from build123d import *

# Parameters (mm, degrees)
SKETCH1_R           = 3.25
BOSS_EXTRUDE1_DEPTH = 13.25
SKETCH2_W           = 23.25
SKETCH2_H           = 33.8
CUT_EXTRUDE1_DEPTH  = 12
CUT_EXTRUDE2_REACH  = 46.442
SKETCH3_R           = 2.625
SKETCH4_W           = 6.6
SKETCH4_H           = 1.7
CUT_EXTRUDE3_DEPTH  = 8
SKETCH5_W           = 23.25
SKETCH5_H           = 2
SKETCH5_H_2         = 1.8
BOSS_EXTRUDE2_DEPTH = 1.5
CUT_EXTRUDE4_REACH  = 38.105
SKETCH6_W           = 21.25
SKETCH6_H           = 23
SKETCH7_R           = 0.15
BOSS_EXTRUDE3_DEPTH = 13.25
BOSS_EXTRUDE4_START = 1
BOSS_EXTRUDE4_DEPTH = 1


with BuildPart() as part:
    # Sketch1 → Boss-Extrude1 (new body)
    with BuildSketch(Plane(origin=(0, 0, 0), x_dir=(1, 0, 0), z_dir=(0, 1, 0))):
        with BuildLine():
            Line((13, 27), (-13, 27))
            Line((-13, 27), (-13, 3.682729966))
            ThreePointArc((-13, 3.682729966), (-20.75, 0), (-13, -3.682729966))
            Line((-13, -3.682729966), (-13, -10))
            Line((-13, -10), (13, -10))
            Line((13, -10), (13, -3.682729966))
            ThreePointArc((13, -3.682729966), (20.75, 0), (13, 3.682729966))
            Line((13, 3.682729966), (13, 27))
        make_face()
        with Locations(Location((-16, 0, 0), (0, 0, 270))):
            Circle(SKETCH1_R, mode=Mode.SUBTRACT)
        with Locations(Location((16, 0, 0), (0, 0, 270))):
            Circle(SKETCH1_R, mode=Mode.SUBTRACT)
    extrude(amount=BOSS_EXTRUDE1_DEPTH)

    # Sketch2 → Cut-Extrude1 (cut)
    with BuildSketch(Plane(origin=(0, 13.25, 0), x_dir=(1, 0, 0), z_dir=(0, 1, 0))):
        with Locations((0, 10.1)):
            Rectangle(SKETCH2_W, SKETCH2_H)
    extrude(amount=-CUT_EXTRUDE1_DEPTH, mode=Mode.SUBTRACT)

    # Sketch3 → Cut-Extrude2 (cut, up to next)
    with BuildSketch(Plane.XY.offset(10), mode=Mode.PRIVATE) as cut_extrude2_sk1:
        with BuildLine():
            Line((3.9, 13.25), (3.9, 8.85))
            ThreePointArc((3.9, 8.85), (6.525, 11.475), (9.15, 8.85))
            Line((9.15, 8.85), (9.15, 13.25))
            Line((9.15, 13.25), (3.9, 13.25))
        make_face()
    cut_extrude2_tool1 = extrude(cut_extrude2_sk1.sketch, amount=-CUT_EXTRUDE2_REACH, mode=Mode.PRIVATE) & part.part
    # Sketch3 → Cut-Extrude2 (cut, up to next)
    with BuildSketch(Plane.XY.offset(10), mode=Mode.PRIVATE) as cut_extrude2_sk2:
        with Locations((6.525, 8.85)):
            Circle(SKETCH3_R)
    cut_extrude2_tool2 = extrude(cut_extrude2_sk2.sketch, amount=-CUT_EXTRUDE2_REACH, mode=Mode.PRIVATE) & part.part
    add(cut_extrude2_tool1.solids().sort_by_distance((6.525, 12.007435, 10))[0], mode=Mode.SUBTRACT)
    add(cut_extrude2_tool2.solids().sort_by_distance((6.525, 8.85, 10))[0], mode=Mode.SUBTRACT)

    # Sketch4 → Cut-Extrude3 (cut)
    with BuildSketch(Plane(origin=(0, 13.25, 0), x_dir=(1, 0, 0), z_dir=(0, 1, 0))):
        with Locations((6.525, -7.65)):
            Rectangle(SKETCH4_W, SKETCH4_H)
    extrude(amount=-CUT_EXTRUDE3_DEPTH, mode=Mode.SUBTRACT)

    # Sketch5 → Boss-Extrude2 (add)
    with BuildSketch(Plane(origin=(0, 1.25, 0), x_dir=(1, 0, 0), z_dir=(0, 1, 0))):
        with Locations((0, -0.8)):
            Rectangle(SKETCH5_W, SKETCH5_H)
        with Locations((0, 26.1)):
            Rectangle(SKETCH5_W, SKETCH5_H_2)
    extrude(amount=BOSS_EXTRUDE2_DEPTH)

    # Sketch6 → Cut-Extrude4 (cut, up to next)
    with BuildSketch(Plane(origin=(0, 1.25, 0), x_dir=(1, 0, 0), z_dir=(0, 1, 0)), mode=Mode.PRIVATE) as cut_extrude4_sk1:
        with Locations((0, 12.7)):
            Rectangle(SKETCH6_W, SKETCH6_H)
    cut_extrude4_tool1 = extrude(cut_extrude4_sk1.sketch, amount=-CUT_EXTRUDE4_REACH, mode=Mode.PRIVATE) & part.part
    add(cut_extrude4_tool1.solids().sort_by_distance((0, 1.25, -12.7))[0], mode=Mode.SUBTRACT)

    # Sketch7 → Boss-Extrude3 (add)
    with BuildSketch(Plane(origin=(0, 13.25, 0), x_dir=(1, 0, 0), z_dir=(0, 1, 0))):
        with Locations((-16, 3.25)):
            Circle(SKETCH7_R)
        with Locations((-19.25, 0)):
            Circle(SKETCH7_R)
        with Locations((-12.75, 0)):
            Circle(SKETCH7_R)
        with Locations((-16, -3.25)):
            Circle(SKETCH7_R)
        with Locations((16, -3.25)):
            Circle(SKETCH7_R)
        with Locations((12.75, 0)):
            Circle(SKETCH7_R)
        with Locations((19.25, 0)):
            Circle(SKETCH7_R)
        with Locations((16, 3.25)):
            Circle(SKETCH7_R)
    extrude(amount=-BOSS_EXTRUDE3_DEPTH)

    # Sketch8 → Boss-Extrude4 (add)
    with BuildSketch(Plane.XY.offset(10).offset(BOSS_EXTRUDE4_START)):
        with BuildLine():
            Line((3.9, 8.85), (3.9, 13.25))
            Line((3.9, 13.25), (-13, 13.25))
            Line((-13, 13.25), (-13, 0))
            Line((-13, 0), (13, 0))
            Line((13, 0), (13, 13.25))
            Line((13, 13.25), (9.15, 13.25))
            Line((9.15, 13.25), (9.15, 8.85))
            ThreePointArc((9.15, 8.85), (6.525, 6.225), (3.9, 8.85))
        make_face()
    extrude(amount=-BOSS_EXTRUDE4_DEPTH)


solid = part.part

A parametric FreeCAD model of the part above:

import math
import FreeCAD as App
import Part
import Sketcher
from FreeCAD import Vector

doc = App.newDocument("Part")
body = doc.addObject("PartDesign::Body", "Body")

# Sketch on XZ plane
sketch1 = body.newObject("Sketcher::SketchObject", "Sketch")
sketch1.AttachmentSupport = (doc.getObject("XZ_Plane"), [""])
sketch1.MapMode = "FlatFace"
sketch1.addGeometry([
    Part.LineSegment(Vector(13, -27, 0), Vector(-13, -27, 0)),  # 0
    Part.LineSegment(Vector(-13, -27, 0), Vector(-13, -3.7, 0)),  # 1
    Part.ArcOfCircle(Part.Circle(Vector(-16, 0, 0), Vector(0, 0, 1), 4.8), math.radians(51), math.radians(309)),  # 2
    Part.LineSegment(Vector(-13, 3.7, 0), Vector(-13, 10, 0)),  # 3
    Part.LineSegment(Vector(-13, 10, 0), Vector(13, 10, 0)),  # 4
    Part.LineSegment(Vector(13, 10, 0), Vector(13, 3.7, 0)),  # 5
    Part.ArcOfCircle(Part.Circle(Vector(16, 0, 0), Vector(0, 0, 1), 4.8), math.radians(-129), math.radians(129)),  # 6
    Part.LineSegment(Vector(13, -3.7, 0), Vector(13, -27, 0)),  # 7
    Part.Circle(Vector(-16, 0, 0), Vector(0, 0, 1), 3.2),  # 8
    Part.Circle(Vector(16, 0, 0), Vector(0, 0, 1), 3.2),  # 9
], False)
sketch1.addConstraint([
    Sketcher.Constraint("Coincident", 0, 2, 1, 1),
    Sketcher.Constraint("Coincident", 1, 2, 2, 2),
    Sketcher.Constraint("Coincident", 2, 1, 3, 1),
    Sketcher.Constraint("Coincident", 3, 2, 4, 1),
    Sketcher.Constraint("Coincident", 4, 2, 5, 1),
    Sketcher.Constraint("Coincident", 5, 2, 6, 2),
    Sketcher.Constraint("Coincident", 6, 1, 7, 1),
    Sketcher.Constraint("Coincident", 7, 2, 0, 1),
    Sketcher.Constraint("Horizontal", 0),
    Sketcher.Constraint("Vertical", 1),
    Sketcher.Constraint("Vertical", 3),
    Sketcher.Constraint("Horizontal", 4),
    Sketcher.Constraint("Vertical", 5),
    Sketcher.Constraint("Vertical", 7),
    Sketcher.Constraint("Coincident", 8, 3, 2, 3),
    Sketcher.Constraint("Coincident", 9, 3, 6, 3),
    Sketcher.Constraint("Equal", 2, 6),
    Sketcher.Constraint("Equal", 8, 9),
    Sketcher.Constraint("Symmetric", 2, 3, 6, 3, -1, 1),
    Sketcher.Constraint("Symmetric", 2, 1, 5, 2, -2),
    Sketcher.Constraint("Horizontal", 1, 2, 6, 1),
    Sketcher.Constraint("Vertical", 1, 2, 2, 1),
    Sketcher.Constraint("Diameter", 8, 6.5),
    Sketcher.Constraint("DistanceX", 0, 2, 0, 1, 26.0),
    Sketcher.Constraint("Radius", 2, 4.75),
    Sketcher.Constraint("DistanceX", 2, 3, -1, 1, 16.0),
    Sketcher.Constraint("DistanceY", 0, 2, -1, 1, 27.0),
    Sketcher.Constraint("DistanceY", -1, 1, 3, 2, 10.0),
])
pad1 = body.newObject("PartDesign::Pad", "Pad")
pad1.Profile = sketch1
pad1.Length = 13.25
pad1.Reversed = True

# Sketch on XZ plane
sketch2 = body.newObject("Sketcher::SketchObject", "Sketch001")
sketch2.AttachmentSupport = (doc.getObject("XZ_Plane"), [""])
sketch2.MapMode = "FlatFace"
sketch2.AttachmentOffset = App.Placement(Vector(0, 0, -13.25), App.Rotation())
sketch2.addGeometry([
    Part.LineSegment(Vector(-12, -27, 0), Vector(-12, 7, 0)),
    Part.LineSegment(Vector(-12, 7, 0), Vector(12, 7, 0)),
    Part.LineSegment(Vector(12, 7, 0), Vector(12, -27, 0)),
    Part.LineSegment(Vector(12, -27, 0), Vector(-12, -27, 0)),
], False)
sketch2.addConstraint([
    Sketcher.Constraint("Coincident", 0, 2, 1, 1),
    Sketcher.Constraint("Coincident", 1, 2, 2, 1),
    Sketcher.Constraint("Coincident", 2, 2, 3, 1),
    Sketcher.Constraint("Coincident", 3, 2, 0, 1),
    Sketcher.Constraint("Vertical", 0),
    Sketcher.Constraint("Horizontal", 1),
    Sketcher.Constraint("Vertical", 2),
    Sketcher.Constraint("Horizontal", 3),
    Sketcher.Constraint("DistanceY", 0, 1, 0, 2, 33.8),
    Sketcher.Constraint("DistanceY", 2, 2, -1, 1, 27.0),
    Sketcher.Constraint("DistanceX", 1, 1, 1, 2, 23.25),
    Sketcher.Constraint("DistanceX", 0, 2, -1, 1, 11.625),
])
pocket1 = body.newObject("PartDesign::Pocket", "Pocket")
pocket1.Profile = sketch2
pocket1.Length = 12
pocket1.Reversed = True

# Sketch on XY plane
sketch3 = body.newObject("Sketcher::SketchObject", "Sketch002")
sketch3.AttachmentSupport = (doc.getObject("XY_Plane"), [""])
sketch3.MapMode = "FlatFace"
sketch3.AttachmentOffset = App.Placement(Vector(0, 0, 10), App.Rotation())
sketch3.addGeometry([
    Part.LineSegment(Vector(3.9, 13.2, 0), Vector(3.9, 8.8, 0)),
    Part.ArcOfCircle(Part.Circle(Vector(6.5, 8.8, 0), Vector(0, 0, 1), 2.6), math.radians(0), math.radians(180)),
    Part.LineSegment(Vector(9.2, 8.8, 0), Vector(9.2, 13.2, 0)),
    Part.LineSegment(Vector(9.2, 13.2, 0), Vector(3.9, 13.2, 0)),
], False)
sketch3.addConstraint([
    Sketcher.Constraint("Tangent", 0, 2, 1, 2),
    Sketcher.Constraint("Tangent", 1, 1, 2, 1),
    Sketcher.Constraint("Coincident", 2, 2, 3, 1),
    Sketcher.Constraint("Coincident", 3, 2, 0, 1),
    Sketcher.Constraint("Vertical", 0),
    Sketcher.Constraint("Vertical", 2),
    Sketcher.Constraint("Horizontal", 3),
    Sketcher.Constraint("DistanceY", 0, 2, 0, 1, 4.4),
    Sketcher.Constraint("Radius", 1, 2.625),
    Sketcher.Constraint("DistanceX", -1, 1, 0, 2, 3.9),
    Sketcher.Constraint("DistanceY", -1, 1, 1, 3, 8.85),
])
pocket2 = body.newObject("PartDesign::Pocket", "Pocket001")
pocket2.Profile = sketch3
pocket2.Type = "UpToFirst"

# Sketch on XY plane
sketch4 = body.newObject("Sketcher::SketchObject", "Sketch003")
sketch4.AttachmentSupport = (doc.getObject("XY_Plane"), [""])
sketch4.MapMode = "FlatFace"
sketch4.AttachmentOffset = App.Placement(Vector(0, 0, 10), App.Rotation())
sketch4.addGeometry(Part.Circle(Vector(6.5, 8.8, 0), Vector(0, 0, 1), 2.6), False)
sketch4.addConstraint([
    Sketcher.Constraint("Diameter", 0, 5.25),
    Sketcher.Constraint("DistanceY", -1, 1, 0, 3, 8.85),
    Sketcher.Constraint("DistanceX", -1, 1, 0, 3, 6.525),
])
pocket3 = body.newObject("PartDesign::Pocket", "Pocket002")
pocket3.Profile = sketch4
pocket3.Type = "UpToFirst"

# Sketch on XZ plane
sketch5 = body.newObject("Sketcher::SketchObject", "Sketch004")
sketch5.AttachmentSupport = (doc.getObject("XZ_Plane"), [""])
sketch5.MapMode = "FlatFace"
sketch5.AttachmentOffset = App.Placement(Vector(0, 0, -13.25), App.Rotation())
sketch5.addGeometry([
    Part.LineSegment(Vector(3.2, 6.8, 0), Vector(3.2, 8.5, 0)),
    Part.LineSegment(Vector(3.2, 8.5, 0), Vector(9.8, 8.5, 0)),
    Part.LineSegment(Vector(9.8, 8.5, 0), Vector(9.8, 6.8, 0)),
    Part.LineSegment(Vector(9.8, 6.8, 0), Vector(3.2, 6.8, 0)),
], False)
sketch5.addConstraint([
    Sketcher.Constraint("Coincident", 0, 2, 1, 1),
    Sketcher.Constraint("Coincident", 1, 2, 2, 1),
    Sketcher.Constraint("Coincident", 2, 2, 3, 1),
    Sketcher.Constraint("Coincident", 3, 2, 0, 1),
    Sketcher.Constraint("Vertical", 0),
    Sketcher.Constraint("Horizontal", 1),
    Sketcher.Constraint("Vertical", 2),
    Sketcher.Constraint("Horizontal", 3),
    Sketcher.Constraint("DistanceX", 1, 1, 1, 2, 6.6),
    Sketcher.Constraint("DistanceY", 0, 1, 0, 2, 1.7),
    Sketcher.Constraint("DistanceY", -1, 1, 0, 2, 8.5),
    Sketcher.Constraint("DistanceX", -1, 1, 0, 2, 3.225),
])
pocket4 = body.newObject("PartDesign::Pocket", "Pocket003")
pocket4.Profile = sketch5
pocket4.Length = 8
pocket4.Reversed = True

# Sketch on XZ plane
sketch6 = body.newObject("Sketcher::SketchObject", "Sketch005")
sketch6.AttachmentSupport = (doc.getObject("XZ_Plane"), [""])
sketch6.MapMode = "FlatFace"
sketch6.AttachmentOffset = App.Placement(Vector(0, 0, -1.25), App.Rotation())
sketch6.addGeometry([
    Part.LineSegment(Vector(-11.6, -0.2, 0), Vector(-11.6, 1.8, 0)),  # 0
    Part.LineSegment(Vector(-11.6, 1.8, 0), Vector(11.6, 1.8, 0)),  # 1
    Part.LineSegment(Vector(11.6, 1.8, 0), Vector(11.6, -0.2, 0)),  # 2
    Part.LineSegment(Vector(11.6, -0.2, 0), Vector(-11.6, -0.2, 0)),  # 3
    Part.LineSegment(Vector(-11.6, -27, 0), Vector(-11.6, -25.2, 0)),  # 4
    Part.LineSegment(Vector(-11.6, -25.2, 0), Vector(11.6, -25.2, 0)),  # 5
    Part.LineSegment(Vector(11.6, -25.2, 0), Vector(11.6, -27, 0)),  # 6
    Part.LineSegment(Vector(11.6, -27, 0), Vector(-11.6, -27, 0)),  # 7
], False)
sketch6.addConstraint([
    Sketcher.Constraint("Coincident", 0, 2, 1, 1),
    Sketcher.Constraint("Coincident", 1, 2, 2, 1),
    Sketcher.Constraint("Coincident", 2, 2, 3, 1),
    Sketcher.Constraint("Coincident", 3, 2, 0, 1),
    Sketcher.Constraint("Coincident", 4, 2, 5, 1),
    Sketcher.Constraint("Coincident", 5, 2, 6, 1),
    Sketcher.Constraint("Coincident", 6, 2, 7, 1),
    Sketcher.Constraint("Coincident", 7, 2, 4, 1),
    Sketcher.Constraint("Vertical", 0),
    Sketcher.Constraint("Horizontal", 1),
    Sketcher.Constraint("Vertical", 2),
    Sketcher.Constraint("Horizontal", 3),
    Sketcher.Constraint("Vertical", 4),
    Sketcher.Constraint("Horizontal", 5),
    Sketcher.Constraint("Vertical", 6),
    Sketcher.Constraint("Horizontal", 7),
    Sketcher.Constraint("Vertical", 3, 2, 4, 2),
    Sketcher.Constraint("Vertical", 2, 2, 5, 2),
    Sketcher.Constraint("DistanceY", 0, 1, 0, 2, 2.0),
    Sketcher.Constraint("DistanceY", 4, 1, 4, 2, 1.8),
    Sketcher.Constraint("DistanceY", 6, 2, -1, 1, 27.0),
    Sketcher.Constraint("DistanceY", 4, 2, 3, 2, 25.0),
    Sketcher.Constraint("DistanceX", 1, 1, 1, 2, 23.25),
    Sketcher.Constraint("DistanceX", 0, 2, -1, 1, 11.625),
])
pad2 = body.newObject("PartDesign::Pad", "Pad001")
pad2.Profile = sketch6
pad2.Length = 1.5
pad2.Reversed = True

# Sketch on XZ plane
sketch7 = body.newObject("Sketcher::SketchObject", "Sketch006")
sketch7.AttachmentSupport = (doc.getObject("XZ_Plane"), [""])
sketch7.MapMode = "FlatFace"
sketch7.AttachmentOffset = App.Placement(Vector(0, 0, -1.25), App.Rotation())
sketch7.addGeometry([
    Part.LineSegment(Vector(-11, -24, 0), Vector(-11, -1, 0)),
    Part.LineSegment(Vector(-11, -1, 0), Vector(11, -1, 0)),
    Part.LineSegment(Vector(11, -1, 0), Vector(11, -24, 0)),
    Part.LineSegment(Vector(11, -24, 0), Vector(-11, -24, 0)),
], False)
sketch7.addConstraint([
    Sketcher.Constraint("Coincident", 0, 2, 1, 1),
    Sketcher.Constraint("Coincident", 1, 2, 2, 1),
    Sketcher.Constraint("Coincident", 2, 2, 3, 1),
    Sketcher.Constraint("Coincident", 3, 2, 0, 1),
    Sketcher.Constraint("Vertical", 0),
    Sketcher.Constraint("Horizontal", 1),
    Sketcher.Constraint("Vertical", 2),
    Sketcher.Constraint("Horizontal", 3),
    Sketcher.Constraint("DistanceY", 0, 1, 0, 2, 23.0),
    Sketcher.Constraint("DistanceX", 1, 1, 1, 2, 21.25),
    Sketcher.Constraint("DistanceY", 0, 2, -1, 1, 1.2),
    Sketcher.Constraint("DistanceX", 0, 2, -1, 1, 10.625),
])
pocket5 = body.newObject("PartDesign::Pocket", "Pocket004")
pocket5.Profile = sketch7
pocket5.Type = "UpToFirst"
pocket5.Reversed = True

# Sketch on XZ plane
sketch8 = body.newObject("Sketcher::SketchObject", "Sketch007")
sketch8.AttachmentSupport = (doc.getObject("XZ_Plane"), [""])
sketch8.MapMode = "FlatFace"
sketch8.AttachmentOffset = App.Placement(Vector(0, 0, -13.25), App.Rotation())
sketch8.addGeometry([
    Part.Circle(Vector(-16, -3.25, 0), Vector(0, 0, 1), 0.15),  # 0
    Part.Circle(Vector(-19.25, 0, 0), Vector(0, 0, 1), 0.15),  # 1
    Part.Circle(Vector(-12.75, 0, 0), Vector(0, 0, 1), 0.15),  # 2
    Part.Circle(Vector(-16, 3.25, 0), Vector(0, 0, 1), 0.15),  # 3
    Part.Circle(Vector(16, 3.25, 0), Vector(0, 0, 1), 0.15),  # 4
    Part.Circle(Vector(12.75, 0, 0), Vector(0, 0, 1), 0.15),  # 5
    Part.Circle(Vector(19.25, 0, 0), Vector(0, 0, 1), 0.15),  # 6
    Part.Circle(Vector(16, -3.25, 0), Vector(0, 0, 1), 0.15),  # 7
], False)
sketch8.addConstraint([
    Sketcher.Constraint("Equal", 0, 1),
    Sketcher.Constraint("Equal", 1, 2),
    Sketcher.Constraint("Equal", 2, 3),
    Sketcher.Constraint("Equal", 3, 4),
    Sketcher.Constraint("Equal", 4, 5),
    Sketcher.Constraint("Equal", 5, 6),
    Sketcher.Constraint("Equal", 6, 7),
    Sketcher.Constraint("Symmetric", 0, 3, 4, 3, -1, 1),
    Sketcher.Constraint("Symmetric", 2, 3, 5, 3, -1, 1),
    Sketcher.Constraint("Symmetric", 1, 3, 6, 3, -1, 1),
    Sketcher.Constraint("Symmetric", 3, 3, 7, 3, -1, 1),
    Sketcher.Constraint("Symmetric", 3, 3, 4, 3, -2),
    Sketcher.Constraint("PointOnObject", 1, 3, -1),
    Sketcher.Constraint("PointOnObject", 2, 3, -1),
    Sketcher.Constraint("Diameter", 0, 0.3),
    Sketcher.Constraint("DistanceX", 0, 3, -1, 1, 16.0),
    Sketcher.Constraint("DistanceX", 1, 3, 5, 3, 32.0),
    Sketcher.Constraint("DistanceX", 1, 3, 2, 3, 6.5),
    Sketcher.Constraint("DistanceY", 0, 3, 3, 3, 6.5),
])
pad3 = body.newObject("PartDesign::Pad", "Pad002")
pad3.Profile = sketch8
pad3.Length = 13.25

# Sketch on XY plane
sketch9 = body.newObject("Sketcher::SketchObject", "Sketch008")
sketch9.AttachmentSupport = (doc.getObject("XY_Plane"), [""])
sketch9.MapMode = "FlatFace"
sketch9.AttachmentOffset = App.Placement(Vector(0, 0, 11), App.Rotation())
sketch9.addGeometry([
    Part.LineSegment(Vector(3.9, 8.8, 0), Vector(3.9, 13.2, 0)),  # 0
    Part.LineSegment(Vector(3.9, 13.2, 0), Vector(-13, 13.2, 0)),  # 1
    Part.LineSegment(Vector(-13, 13.2, 0), Vector(-13, 0, 0)),  # 2
    Part.LineSegment(Vector(-13, 0, 0), Vector(13, 0, 0)),  # 3
    Part.LineSegment(Vector(13, 0, 0), Vector(13, 13.2, 0)),  # 4
    Part.LineSegment(Vector(13, 13.2, 0), Vector(9.2, 13.2, 0)),  # 5
    Part.LineSegment(Vector(9.2, 13.2, 0), Vector(9.2, 8.8, 0)),  # 6
    Part.ArcOfCircle(Part.Circle(Vector(6.5, 8.8, 0), Vector(0, 0, 1), 2.6), math.radians(180), math.radians(360)),  # 7
], False)
sketch9.addConstraint([
    Sketcher.Constraint("Coincident", 0, 2, 1, 1),
    Sketcher.Constraint("Coincident", 1, 2, 2, 1),
    Sketcher.Constraint("Coincident", 2, 2, 3, 1),
    Sketcher.Constraint("Coincident", 3, 2, 4, 1),
    Sketcher.Constraint("Coincident", 4, 2, 5, 1),
    Sketcher.Constraint("Coincident", 5, 2, 6, 1),
    Sketcher.Constraint("Tangent", 6, 2, 7, 2),
    Sketcher.Constraint("Tangent", 7, 1, 0, 1),
    Sketcher.Constraint("Vertical", 0),
    Sketcher.Constraint("Horizontal", 1),
    Sketcher.Constraint("Vertical", 2),
    Sketcher.Constraint("Horizontal", 3),
    Sketcher.Constraint("Vertical", 4),
    Sketcher.Constraint("Horizontal", 5),
    Sketcher.Constraint("Vertical", 6),
    Sketcher.Constraint("Symmetric", 2, 2, 3, 2, -1, 1),
    Sketcher.Constraint("Horizontal", 1, 2, 4, 2),
    Sketcher.Constraint("DistanceX", 3, 1, 3, 2, 26.0),
    Sketcher.Constraint("DistanceX", 1, 2, 1, 1, 16.9),
    Sketcher.Constraint("DistanceY", 0, 1, 0, 2, 4.4),
    Sketcher.Constraint("Radius", 7, 2.625),
    Sketcher.Constraint("DistanceY", 2, 2, 2, 1, 13.25),
])
pad4 = body.newObject("PartDesign::Pad", "Pad003")
pad4.Profile = sketch9
pad4.Length = 1
pad4.Reversed = True

doc.recompute()
